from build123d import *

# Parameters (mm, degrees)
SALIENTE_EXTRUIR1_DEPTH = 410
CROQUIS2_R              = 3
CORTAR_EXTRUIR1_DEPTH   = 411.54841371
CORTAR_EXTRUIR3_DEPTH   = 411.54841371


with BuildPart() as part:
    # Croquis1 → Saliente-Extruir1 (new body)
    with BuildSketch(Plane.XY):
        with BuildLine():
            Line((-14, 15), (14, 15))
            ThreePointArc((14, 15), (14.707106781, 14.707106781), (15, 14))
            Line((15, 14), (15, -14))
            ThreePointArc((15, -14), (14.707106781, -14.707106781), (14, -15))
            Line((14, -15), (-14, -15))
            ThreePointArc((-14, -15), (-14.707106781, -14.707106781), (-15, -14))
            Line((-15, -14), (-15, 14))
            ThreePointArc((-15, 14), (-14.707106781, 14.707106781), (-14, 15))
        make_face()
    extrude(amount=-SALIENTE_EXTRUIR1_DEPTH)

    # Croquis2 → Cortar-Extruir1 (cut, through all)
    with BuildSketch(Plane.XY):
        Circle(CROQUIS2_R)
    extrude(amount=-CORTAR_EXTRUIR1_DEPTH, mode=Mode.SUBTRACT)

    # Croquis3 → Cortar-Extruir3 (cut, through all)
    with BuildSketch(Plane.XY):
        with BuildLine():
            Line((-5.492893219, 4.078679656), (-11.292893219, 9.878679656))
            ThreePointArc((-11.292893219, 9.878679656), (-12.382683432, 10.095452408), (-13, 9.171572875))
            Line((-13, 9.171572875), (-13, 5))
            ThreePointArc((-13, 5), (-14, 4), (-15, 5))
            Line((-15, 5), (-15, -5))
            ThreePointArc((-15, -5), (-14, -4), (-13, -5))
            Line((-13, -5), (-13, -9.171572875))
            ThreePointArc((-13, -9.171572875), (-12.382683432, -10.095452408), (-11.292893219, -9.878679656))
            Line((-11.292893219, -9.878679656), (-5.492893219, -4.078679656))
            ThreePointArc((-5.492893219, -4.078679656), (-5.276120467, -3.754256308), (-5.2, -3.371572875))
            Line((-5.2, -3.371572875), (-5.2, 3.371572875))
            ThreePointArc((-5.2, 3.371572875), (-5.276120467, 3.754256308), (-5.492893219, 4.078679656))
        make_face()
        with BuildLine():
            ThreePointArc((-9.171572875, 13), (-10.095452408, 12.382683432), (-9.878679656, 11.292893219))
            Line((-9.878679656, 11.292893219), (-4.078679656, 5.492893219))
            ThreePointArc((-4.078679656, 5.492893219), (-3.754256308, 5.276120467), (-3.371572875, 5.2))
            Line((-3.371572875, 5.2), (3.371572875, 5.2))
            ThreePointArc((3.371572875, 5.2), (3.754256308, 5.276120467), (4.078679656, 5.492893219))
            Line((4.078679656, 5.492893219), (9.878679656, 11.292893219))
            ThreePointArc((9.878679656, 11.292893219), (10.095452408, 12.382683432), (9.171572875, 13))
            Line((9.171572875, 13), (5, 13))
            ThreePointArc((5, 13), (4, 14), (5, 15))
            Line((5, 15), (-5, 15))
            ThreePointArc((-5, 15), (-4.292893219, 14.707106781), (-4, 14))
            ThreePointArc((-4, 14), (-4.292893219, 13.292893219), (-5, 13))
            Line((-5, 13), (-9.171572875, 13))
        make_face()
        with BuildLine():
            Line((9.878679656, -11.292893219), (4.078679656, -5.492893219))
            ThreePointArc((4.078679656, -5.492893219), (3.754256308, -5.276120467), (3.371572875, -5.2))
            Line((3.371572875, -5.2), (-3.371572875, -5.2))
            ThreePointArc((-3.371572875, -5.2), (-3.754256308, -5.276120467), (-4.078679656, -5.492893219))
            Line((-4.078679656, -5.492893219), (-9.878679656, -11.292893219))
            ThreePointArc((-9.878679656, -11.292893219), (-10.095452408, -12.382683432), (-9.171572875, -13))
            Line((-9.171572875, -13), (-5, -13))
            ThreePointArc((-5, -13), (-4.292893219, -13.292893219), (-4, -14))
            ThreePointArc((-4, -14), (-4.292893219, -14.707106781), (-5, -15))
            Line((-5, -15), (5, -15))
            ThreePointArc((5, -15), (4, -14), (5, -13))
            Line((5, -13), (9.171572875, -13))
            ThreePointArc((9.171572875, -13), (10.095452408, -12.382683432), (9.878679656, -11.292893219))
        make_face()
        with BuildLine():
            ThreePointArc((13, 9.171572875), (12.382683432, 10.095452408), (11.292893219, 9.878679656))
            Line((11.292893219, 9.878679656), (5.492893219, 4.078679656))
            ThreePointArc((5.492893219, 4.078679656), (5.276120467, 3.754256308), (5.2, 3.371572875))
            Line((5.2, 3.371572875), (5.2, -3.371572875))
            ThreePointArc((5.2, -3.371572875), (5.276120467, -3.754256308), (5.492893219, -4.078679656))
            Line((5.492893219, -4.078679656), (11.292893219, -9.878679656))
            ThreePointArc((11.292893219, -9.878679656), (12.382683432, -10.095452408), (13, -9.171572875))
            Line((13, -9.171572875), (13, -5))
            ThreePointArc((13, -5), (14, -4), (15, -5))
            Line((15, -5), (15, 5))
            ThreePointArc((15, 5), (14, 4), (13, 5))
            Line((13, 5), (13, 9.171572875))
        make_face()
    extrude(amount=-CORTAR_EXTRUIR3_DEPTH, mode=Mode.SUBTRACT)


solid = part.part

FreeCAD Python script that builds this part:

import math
import FreeCAD as App
import Part
import Sketcher

V = App.Vector

doc = App.newDocument("Part")
params = doc.addObject("Spreadsheet::Sheet", "Params")
for row, (alias, value) in enumerate([
    ("sketch1_radius", "1 mm"),
    ("sketch1_width", "28 mm"),
    ("pad1_length", "410 mm"),
    ("sketch2_diameter", "6 mm"),
    ("sketch3_radius", "1 mm"),
    ("sketch3_width", "10 mm"),
], start=1):
    params.set(f"A{row}", alias)
    params.set(f"B{row}", "=" + value)
    params.setAlias(f"B{row}", alias)

body = doc.addObject("PartDesign::Body", "Body")

# Sketch on XY plane
sketch1 = doc.addObject("Sketcher::SketchObject", "Sketch")
body.addObject(sketch1)
sketch1.AttachmentSupport = (doc.XY_Plane, [""])
sketch1.MapMode = "FlatFace"
sketch1.addGeometry([
    Part.LineSegment(V(14, 15, 0), V(-14, 15, 0)),  # 0
    Part.ArcOfCircle(Part.Circle(V(-14, 14, 0), V(0, 0, 1), 1), math.radians(90), math.radians(180)),  # 1
    Part.LineSegment(V(-15, 14, 0), V(-15, -14, 0)),  # 2
    Part.ArcOfCircle(Part.Circle(V(-14, -14, 0), V(0, 0, 1), 1), math.radians(-180), math.radians(-90)),  # 3
    Part.LineSegment(V(-14, -15, 0), V(14, -15, 0)),  # 4
    Part.ArcOfCircle(Part.Circle(V(14, -14, 0), V(0, 0, 1), 1), math.radians(-90), math.radians(0)),  # 5
    Part.LineSegment(V(15, -14, 0), V(15, 14, 0)),  # 6
    Part.ArcOfCircle(Part.Circle(V(14, 14, 0), V(0, 0, 1), 1), math.radians(0), math.radians(90)),  # 7
], False)
sketch1.addConstraint([
    Sketcher.Constraint("Tangent", 0, 2, 1, 1),
    Sketcher.Constraint("Tangent", 1, 2, 2, 1),
    Sketcher.Constraint("Tangent", 2, 2, 3, 1),
    Sketcher.Constraint("Tangent", 3, 2, 4, 1),
    Sketcher.Constraint("Tangent", 4, 2, 5, 1),
    Sketcher.Constraint("Tangent", 5, 2, 6, 1),
    Sketcher.Constraint("Tangent", 6, 2, 7, 1),
    Sketcher.Constraint("Tangent", 7, 2, 0, 1),
    Sketcher.Constraint("Horizontal", 0),
    Sketcher.Constraint("Vertical", 2),
    Sketcher.Constraint("Horizontal", 4),
    Sketcher.Constraint("Vertical", 6),
    Sketcher.Constraint("Equal", 1, 3),
    Sketcher.Constraint("Equal", 3, 5),
    Sketcher.Constraint("Equal", 5, 7),
    Sketcher.Constraint("Symmetric", 1, 3, 5, 3, -1, 1),
    Sketcher.Constraint("Equal", 4, 2),
    Sketcher.Constraint("Radius", 1, 1.0),
    Sketcher.Constraint("DistanceX", 0, 2, 0, 1, 28.0),
])
sketch1.setExpression("Constraints[17]", "Params.sketch1_radius")
sketch1.setExpression("Constraints[18]", "Params.sketch1_width")
pad1 = doc.addObject("PartDesign::Pad", "Pad")
body.addObject(pad1)
pad1.Profile = sketch1
pad1.setExpression("Length", "Params.pad1_length")
pad1.Reversed = True

# Sketch on XY plane
sketch2 = doc.addObject("Sketcher::SketchObject", "Sketch001")
body.addObject(sketch2)
sketch2.AttachmentSupport = (doc.XY_Plane, [""])
sketch2.MapMode = "FlatFace"
sketch2.addGeometry(Part.Circle(V(0, 0, 0), V(0, 0, 1), 3), False)
sketch2.addConstraint([
    Sketcher.Constraint("Coincident", 0, 3, -1, 1),
    Sketcher.Constraint("Diameter", 0, 6.0),
])
sketch2.setExpression("Constraints[1]", "Params.sketch2_diameter")
pocket1 = doc.addObject("PartDesign::Pocket", "Pocket")
body.addObject(pocket1)
pocket1.Profile = sketch2
pocket1.Type = "ThroughAll"

# Sketch on XY plane
sketch3 = doc.addObject("Sketcher::SketchObject", "Sketch002")
body.addObject(sketch3)
sketch3.AttachmentSupport = (doc.XY_Plane, [""])
sketch3.MapMode = "FlatFace"
sketch3.addGeometry([
    Part.LineSegment(V(-5.492893, 4.07868, 0), V(-11.292893, 9.87868, 0)),  # 0
    Part.ArcOfCircle(Part.Circle(V(-12, 9.171573, 0), V(0, 0, 1), 1), math.radians(45), math.radians(180)),  # 1
    Part.LineSegment(V(-13, 9.171573, 0), V(-13, 5, 0)),  # 2
    Part.ArcOfCircle(Part.Circle(V(-14, 5, 0), V(0, 0, 1), 1), math.radians(180), math.radians(360)),  # 3
    Part.LineSegment(V(-15, 5, 0), V(-15, -5, 0)),  # 4
    Part.ArcOfCircle(Part.Circle(V(-14, -5, 0), V(0, 0, 1), 1), math.radians(0), math.radians(180)),  # 5
    Part.LineSegment(V(-13, -5, 0), V(-13, -9.171573, 0)),  # 6
    Part.ArcOfCircle(Part.Circle(V(-12, -9.171573, 0), V(0, 0, 1), 1), math.radians(180), math.radians(315)),  # 7
    Part.LineSegment(V(-11.292893, -9.87868, 0), V(-5.492893, -4.07868, 0)),  # 8
    Part.ArcOfCircle(Part.Circle(V(-6.2, -3.371573, 0), V(0, 0, 1), 1), math.radians(-45), math.radians(0)),  # 9
    Part.LineSegment(V(-5.2, -3.371573, 0), V(-5.2, 3.371573, 0)),  # 10
    Part.ArcOfCircle(Part.Circle(V(-6.2, 3.371573, 0), V(0, 0, 1), 1), math.radians(0), math.radians(45)),  # 11
    Part.ArcOfCircle(Part.Circle(V(-9.171573, 12, 0), V(0, 0, 1), 1), math.radians(90), math.radians(225)),  # 12
    Part.LineSegment(V(-9.87868, 11.292893, 0), V(-4.07868, 5.492893, 0)),  # 13
    Part.ArcOfCircle(Part.Circle(V(-3.371573, 6.2, 0), V(0, 0, 1), 1), math.radians(-135), math.radians(-90)),  # 14
    Part.LineSegment(V(-3.371573, 5.2, 0), V(3.371573, 5.2, 0)),  # 15
    Part.ArcOfCircle(Part.Circle(V(3.371573, 6.2, 0), V(0, 0, 1), 1), math.radians(-90), math.radians(-45)),  # 16
    Part.LineSegment(V(4.07868, 5.492893, 0), V(9.87868, 11.292893, 0)),  # 17
    Part.ArcOfCircle(Part.Circle(V(9.171573, 12, 0), V(0, 0, 1), 1), math.radians(-45), math.radians(90)),  # 18
    Part.LineSegment(V(9.171573, 13, 0), V(5, 13, 0)),  # 19
    Part.ArcOfCircle(Part.Circle(V(5, 14, 0), V(0, 0, 1), 1), math.radians(90), math.radians(270)),  # 20
    Part.LineSegment(V(5, 15, 0), V(-5, 15, 0)),  # 21
    Part.ArcOfCircle(Part.Circle(V(-5, 14, 0), V(0, 0, 1), 1), math.radians(0), math.radians(90)),  # 22
    Part.ArcOfCircle(Part.Circle(V(-5, 14, 0), V(0, 0, 1), 1), math.radians(-90), math.radians(0)),  # 23
    Part.LineSegment(V(-5, 13, 0), V(-9.171573, 13, 0)),  # 24
    Part.LineSegment(V(9.87868, -11.292893, 0), V(4.07868, -5.492893, 0)),  # 25
    Part.ArcOfCircle(Part.Circle(V(3.371573, -6.2, 0), V(0, 0, 1), 1), math.radians(45), math.radians(90)),  # 26
    Part.LineSegment(V(3.371573, -5.2, 0), V(-3.371573, -5.2, 0)),  # 27
    Part.ArcOfCircle(Part.Circle(V(-3.371573, -6.2, 0), V(0, 0, 1), 1), math.radians(90), math.radians(135)),  # 28
    Part.LineSegment(V(-4.07868, -5.492893, 0), V(-9.87868, -11.292893, 0)),  # 29
    Part.ArcOfCircle(Part.Circle(V(-9.171573, -12, 0), V(0, 0, 1), 1), math.radians(135), math.radians(270)),  # 30
    Part.LineSegment(V(-9.171573, -13, 0), V(-5, -13, 0)),  # 31
    Part.ArcOfCircle(Part.Circle(V(-5, -14, 0), V(0, 0, 1), 1), math.radians(0), math.radians(90)),  # 32
    Part.ArcOfCircle(Part.Circle(V(-5, -14, 0), V(0, 0, 1), 1), math.radians(-90), math.radians(0)),  # 33
    Part.LineSegment(V(-5, -15, 0), V(5, -15, 0)),  # 34
    Part.ArcOfCircle(Part.Circle(V(5, -14, 0), V(0, 0, 1), 1), math.radians(90), math.radians(270)),  # 35
    Part.LineSegment(V(5, -13, 0), V(9.171573, -13, 0)),  # 36
    Part.ArcOfCircle(Part.Circle(V(9.171573, -12, 0), V(0, 0, 1), 1), math.radians(-90), math.radians(45)),  # 37
    Part.ArcOfCircle(Part.Circle(V(12, 9.171573, 0), V(0, 0, 1), 1), math.radians(0), math.radians(135)),  # 38
    Part.LineSegment(V(11.292893, 9.87868, 0), V(5.492893, 4.07868, 0)),  # 39
    Part.ArcOfCircle(Part.Circle(V(6.2, 3.371573, 0), V(0, 0, 1), 1), math.radians(135), math.radians(180)),  # 40
    Part.LineSegment(V(5.2, 3.371573, 0), V(5.2, -3.371573, 0)),  # 41
    Part.ArcOfCircle(Part.Circle(V(6.2, -3.371573, 0), V(0, 0, 1), 1), math.radians(180), math.radians(225)),  # 42
    Part.LineSegment(V(5.492893, -4.07868, 0), V(11.292893, -9.87868, 0)),  # 43
    Part.ArcOfCircle(Part.Circle(V(12, -9.171573, 0), V(0, 0, 1), 1), math.radians(-135), math.radians(0)),  # 44
    Part.LineSegment(V(13, -9.171573, 0), V(13, -5, 0)),  # 45
    Part.ArcOfCircle(Part.Circle(V(14, -5, 0), V(0, 0, 1), 1), math.radians(0), math.radians(180)),  # 46
    Part.LineSegment(V(15, -5, 0), V(15, 5, 0)),  # 47
    Part.ArcOfCircle(Part.Circle(V(14, 5, 0), V(0, 0, 1), 1), math.radians(180), math.radians(360)),  # 48
    Part.LineSegment(V(13, 5, 0), V(13, 9.171573, 0)),  # 49
], False)
sketch3.addConstraint([
    Sketcher.Constraint("Tangent", 0, 2, 1, 1),
    Sketcher.Constraint("Tangent", 1, 2, 2, 1),
    Sketcher.Constraint("Tangent", 2, 2, 3, 2),
    Sketcher.Constraint("Tangent", 3, 1, 4, 1),
    Sketcher.Constraint("Tangent", 4, 2, 5, 2),
    Sketcher.Constraint("Tangent", 5, 1, 6, 1),
    Sketcher.Constraint("Tangent", 6, 2, 7, 1),
    Sketcher.Constraint("Tangent", 7, 2, 8, 1),
    Sketcher.Constraint("Tangent", 8, 2, 9, 1),
    Sketcher.Constraint("Tangent", 9, 2, 10, 1),
    Sketcher.Constraint("Tangent", 10, 2, 11, 1),
    Sketcher.Constraint("Tangent", 11, 2, 0, 1),
    Sketcher.Constraint("Tangent", 12, 2, 13, 1),
    Sketcher.Constraint("Tangent", 13, 2, 14, 1),
    Sketcher.Constraint("Tangent", 14, 2, 15, 1),
    Sketcher.Constraint("Tangent", 15, 2, 16, 1),
    Sketcher.Constraint("Tangent", 16, 2, 17, 1),
    Sketcher.Constraint("Tangent", 17, 2, 18, 1),
    Sketcher.Constraint("Tangent", 18, 2, 19, 1),
    Sketcher.Constraint("Tangent", 19, 2, 20, 2),
    Sketcher.Constraint("Tangent", 20, 1, 21, 1),
    Sketcher.Constraint("Tangent", 21, 2, 22, 2),
    Sketcher.Constraint("Tangent", 22, 1, 23, 2),
    Sketcher.Constraint("Tangent", 23, 1, 24, 1),
    Sketcher.Constraint("Tangent", 24, 2, 12, 1),
    Sketcher.Constraint("Tangent", 25, 2, 26, 1),
    Sketcher.Constraint("Tangent", 26, 2, 27, 1),
    Sketcher.Constraint("Tangent", 27, 2, 28, 1),
    Sketcher.Constraint("Tangent", 28, 2, 29, 1),
    Sketcher.Constraint("Tangent", 29, 2, 30, 1),
    Sketcher.Constraint("Tangent", 30, 2, 31, 1),
    Sketcher.Constraint("Tangent", 31, 2, 32, 2),
    Sketcher.Constraint("Tangent", 32, 1, 33, 2),
    Sketcher.Constraint("Tangent", 33, 1, 34, 1),
    Sketcher.Constraint("Tangent", 34, 2, 35, 2),
    Sketcher.Constraint("Tangent", 35, 1, 36, 1),
    Sketcher.Constraint("Tangent", 36, 2, 37, 1),
    Sketcher.Constraint("Tangent", 37, 2, 25, 1),
    Sketcher.Constraint("Tangent", 38, 2, 39, 1),
    Sketcher.Constraint("Tangent", 39, 2, 40, 1),
    Sketcher.Constraint("Tangent", 40, 2, 41, 1),
    Sketcher.Constraint("Tangent", 41, 2, 42, 1),
    Sketcher.Constraint("Tangent", 42, 2, 43, 1),
    Sketcher.Constraint("Tangent", 43, 2, 44, 1),
    Sketcher.Constraint("Tangent", 44, 2, 45, 1),
    Sketcher.Constraint("Tangent", 45, 2, 46, 2),
    Sketcher.Constraint("Tangent", 46, 1, 47, 1),
    Sketcher.Constraint("Tangent", 47, 2, 48, 2),
    Sketcher.Constraint("Tangent", 48, 1, 49, 1),
    Sketcher.Constraint("Tangent", 49, 2, 38, 1),
    Sketcher.Constraint("Vertical", 2),
    Sketcher.Constraint("Vertical", 4),
    Sketcher.Constraint("Vertical", 6),
    Sketcher.Constraint("Vertical", 10),
    Sketcher.Constraint("Horizontal", 15),
    Sketcher.Constraint("Horizontal", 19),
    Sketcher.Constraint("Horizontal", 21),
    Sketcher.Constraint("Horizontal", 24),
    Sketcher.Constraint("Horizontal", 27),
    Sketcher.Constraint("Horizontal", 31),
    Sketcher.Constraint("Horizontal", 34),
    Sketcher.Constraint("Horizontal", 36),
    Sketcher.Constraint("Vertical", 41),
    Sketcher.Constraint("Vertical", 45),
    Sketcher.Constraint("Vertical", 47),
    Sketcher.Constraint("Vertical", 49),
    Sketcher.Constraint("Equal", 1, 3),
    Sketcher.Constraint("Equal", 3, 5),
    Sketcher.Constraint("Equal", 5, 7),
    Sketcher.Constraint("Equal", 7, 9),
    Sketcher.Constraint("Equal", 9, 11),
    Sketcher.Constraint("Equal", 11, 12),
    Sketcher.Constraint("Equal", 12, 14),
    Sketcher.Constraint("Equal", 14, 16),
    Sketcher.Constraint("Equal", 16, 18),
    Sketcher.Constraint("Equal", 18, 20),
    Sketcher.Constraint("Equal", 20, 22),
    Sketcher.Constraint("Equal", 22, 23),
    Sketcher.Constraint("Equal", 23, 26),
    Sketcher.Constraint("Equal", 26, 28),
    Sketcher.Constraint("Equal", 28, 30),
    Sketcher.Constraint("Equal", 30, 32),
    Sketcher.Constraint("Equal", 32, 33),
    Sketcher.Constraint("Equal", 33, 35),
    Sketcher.Constraint("Equal", 35, 37),
    Sketcher.Constraint("Equal", 37, 38),
    Sketcher.Constraint("Equal", 38, 40),
    Sketcher.Constraint("Equal", 40, 42),
    Sketcher.Constraint("Equal", 42, 44),
    Sketcher.Constraint("Equal", 44, 46),
    Sketcher.Constraint("Equal", 46, 48),
    Sketcher.Constraint("Symmetric", 14, 3, 26, 3, -1, 1),
    Sketcher.Constraint("Symmetric", 18, 3, 30, 3, -1, 1),
    Sketcher.Constraint("Symmetric", 7, 3, 38, 3, -1, 1),
    Sketcher.Constraint("Symmetric", 9, 3, 40, 3, -1, 1),
    Sketcher.Constraint("Symmetric", 11, 2, 42, 2, -1, 1),
    Sketcher.Constraint("Symmetric", 13, 2, 16, 2, -2),
    Sketcher.Constraint("Symmetric", 25, 2, 28, 2, -2),
    Sketcher.Constraint("Symmetric", 0, 2, 38, 2, -2),
    Sketcher.Constraint("Symmetric", 22, 1, 32, 1, -1),
    Sketcher.Constraint("Perpendicular", 0, 8),
    Sketcher.Constraint("Perpendicular", 8, 13),
    Sketcher.Constraint("Horizontal", 5, 3, 46, 3),
    Sketcher.Constraint("Horizontal", 3, 3, 48, 3),
    Sketcher.Constraint("Horizontal", 23, 3, 22, 1),
    Sketcher.Constraint("Vertical", 20, 3, 35, 3),
    Sketcher.Constraint("Equal", 19, 24),
    Sketcher.Constraint("Equal", 36, 2),
    Sketcher.Constraint("Equal", 34, 4),
    Sketcher.Constraint("Equal", 2, 6),
    Sketcher.Constraint("Equal", 27, 10),
    Sketcher.Constraint("Radius", 1, 1.0),
    Sketcher.Constraint("DistanceX", 21, 2, 21, 1, 10.0),
    Sketcher.Constraint("DistanceX", 1, 3, -1, 1, 12.0),
    Sketcher.Constraint("DistanceY", -1, 1, 12, 3, 12.0),
    Sketcher.Constraint("DistanceX", 9, 3, -1, 1, 6.2),
    Sketcher.Constraint("DistanceX", 15, 1, 15, 2, 6.743146),
])
sketch3.setExpression("Constraints[111]", "Params.sketch3_radius")
sketch3.setExpression("Constraints[112]", "Params.sketch3_width")
pocket2 = doc.addObject("PartDesign::Pocket", "Pocket001")
body.addObject(pocket2)
pocket2.Profile = sketch3
pocket2.Type = "ThroughAll"

doc.recompute()
